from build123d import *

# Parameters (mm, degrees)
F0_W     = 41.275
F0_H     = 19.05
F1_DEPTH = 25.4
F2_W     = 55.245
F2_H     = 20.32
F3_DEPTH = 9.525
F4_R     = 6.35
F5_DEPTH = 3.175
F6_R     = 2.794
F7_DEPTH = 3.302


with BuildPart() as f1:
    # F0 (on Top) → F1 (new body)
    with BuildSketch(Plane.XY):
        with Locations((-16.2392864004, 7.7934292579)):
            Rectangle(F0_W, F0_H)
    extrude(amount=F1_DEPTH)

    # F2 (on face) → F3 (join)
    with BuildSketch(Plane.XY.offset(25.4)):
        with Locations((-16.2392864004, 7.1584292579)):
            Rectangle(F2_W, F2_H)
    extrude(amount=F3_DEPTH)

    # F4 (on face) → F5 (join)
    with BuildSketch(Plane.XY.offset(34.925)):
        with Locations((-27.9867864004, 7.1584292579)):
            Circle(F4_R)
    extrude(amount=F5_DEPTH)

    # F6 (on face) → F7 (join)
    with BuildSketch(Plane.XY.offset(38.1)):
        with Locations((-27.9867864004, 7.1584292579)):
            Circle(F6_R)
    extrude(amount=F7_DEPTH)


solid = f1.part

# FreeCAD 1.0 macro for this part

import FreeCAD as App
import Part
import Sketcher
Q = App.Units.Quantity

doc = App.newDocument("Part")
body = doc.addObject("PartDesign::Body", "Body")

# Sketch on XY plane
sketch1 = body.newObject("Sketcher::SketchObject", "Sketch")
sketch1.AttachmentSupport = (doc.getObject("XY_Plane"), [""])
sketch1.MapMode = "FlatFace"
sketch1.addGeometry(Part.LineSegment(App.Vector(-36.876786, 17.318429, 0), App.Vector(-36.876786, -1.731571, 0)), False)
sketch1.addGeometry(Part.LineSegment(App.Vector(-36.876786, -1.731571, 0), App.Vector(4.398214, -1.731571, 0)), False)
sketch1.addGeometry(Part.LineSegment(App.Vector(4.398214, -1.731571, 0), App.Vector(4.398214, 17.318429, 0)), False)
sketch1.addGeometry(Part.LineSegment(App.Vector(4.398214, 17.318429, 0), App.Vector(-36.876786, 17.318429, 0)), False)
sketch1.addConstraint(Sketcher.Constraint("Coincident", 0, 2, 1, 1))
sketch1.addConstraint(Sketcher.Constraint("Coincident", 1, 2, 2, 1))
sketch1.addConstraint(Sketcher.Constraint("Coincident", 2, 2, 3, 1))
sketch1.addConstraint(Sketcher.Constraint("Coincident", 3, 2, 0, 1))
sketch1.addConstraint(Sketcher.Constraint("Vertical", 0))
sketch1.addConstraint(Sketcher.Constraint("Horizontal", 1))
sketch1.addConstraint(Sketcher.Constraint("Vertical", 2))
sketch1.addConstraint(Sketcher.Constraint("Horizontal", 3))
sketch1.addConstraint(Sketcher.Constraint("DistanceY", 0, 2, 0, 1, Q("0.75 in")))
sketch1.addConstraint(Sketcher.Constraint("DistanceX", 1, 1, 1, 2, Q("1.625 in")))
sketch1.addConstraint(Sketcher.Constraint("DistanceY", 0, 2, -1, 1, 1.731571))
sketch1.addConstraint(Sketcher.Constraint("DistanceX", 0, 2, -1, 1, 36.876786))
pad1 = body.newObject("PartDesign::Pad", "Pad")
pad1.Profile = sketch1
pad1.Length = Q("1 in")

# Sketch on XY plane
sketch2 = body.newObject("Sketcher::SketchObject", "Sketch001")
sketch2.AttachmentSupport = (doc.getObject("XY_Plane"), [""])
sketch2.MapMode = "FlatFace"
sketch2.AttachmentOffset = App.Placement(App.Vector(0, 0, 1 * 25.4), App.Rotation())
sketch2.addGeometry(Part.LineSegment(App.Vector(-43.861786, 17.318429, 0), App.Vector(-43.861786, -3.001571, 0)), False)
sketch2.addGeometry(Part.LineSegment(App.Vector(-43.861786, -3.001571, 0), App.Vector(11.383214, -3.001571, 0)), False)
sketch2.addGeometry(Part.LineSegment(App.Vector(11.383214, -3.001571, 0), App.Vector(11.383214, 17.318429, 0)), False)
sketch2.addGeometry(Part.LineSegment(App.Vector(11.383214, 17.318429, 0), App.Vector(-43.861786, 17.318429, 0)), False)
sketch2.addConstraint(Sketcher.Constraint("Coincident", 0, 2, 1, 1))
sketch2.addConstraint(Sketcher.Constraint("Coincident", 1, 2, 2, 1))
sketch2.addConstraint(Sketcher.Constraint("Coincident", 2, 2, 3, 1))
sketch2.addConstraint(Sketcher.Constraint("Coincident", 3, 2, 0, 1))
sketch2.addConstraint(Sketcher.Constraint("Vertical", 0))
sketch2.addConstraint(Sketcher.Constraint("Horizontal", 1))
sketch2.addConstraint(Sketcher.Constraint("Vertical", 2))
sketch2.addConstraint(Sketcher.Constraint("Horizontal", 3))
sketch2.addConstraint(Sketcher.Constraint("DistanceY", 0, 2, 0, 1, Q("0.8 in")))
sketch2.addConstraint(Sketcher.Constraint("DistanceX", 1, 1, 1, 2, Q("2.175 in")))
sketch2.addConstraint(Sketcher.Constraint("DistanceY", 0, 2, -1, 1, 3.001571))
sketch2.addConstraint(Sketcher.Constraint("DistanceX", 0, 2, -1, 1, 43.861786))
pad2 = body.newObject("PartDesign::Pad", "Pad001")
pad2.Profile = sketch2
pad2.Length = Q("0.375 in")

# Sketch on XY plane
sketch3 = body.newObject("Sketcher::SketchObject", "Sketch002")
sketch3.AttachmentSupport = (doc.getObject("XY_Plane"), [""])
sketch3.MapMode = "FlatFace"
sketch3.AttachmentOffset = App.Placement(App.Vector(0, 0, 1.375 * 25.4), App.Rotation())
sketch3.addGeometry(Part.Circle(App.Vector(-27.986786, 7.158429, 0), App.Vector(0, 0, 1), 6.35), False)
sketch3.addConstraint(Sketcher.Constraint("Diameter", 0, Q("0.5 in")))
sketch3.addConstraint(Sketcher.Constraint("DistanceY", -1, 1, 0, 3, 7.158429))
sketch3.addConstraint(Sketcher.Constraint("DistanceX", 0, 3, -1, 1, 27.986786))
pad3 = body.newObject("PartDesign::Pad", "Pad002")
pad3.Profile = sketch3
pad3.Length = Q("0.125 in")

# Sketch on XY plane
sketch4 = body.newObject("Sketcher::SketchObject", "Sketch003")
sketch4.AttachmentSupport = (doc.getObject("XY_Plane"), [""])
sketch4.MapMode = "FlatFace"
sketch4.AttachmentOffset = App.Placement(App.Vector(0, 0, 1.5 * 25.4), App.Rotation())
sketch4.addGeometry(Part.Circle(App.Vector(-27.986786, 7.158429, 0), App.Vector(0, 0, 1), 2.794), False)
sketch4.addConstraint(Sketcher.Constraint("Diameter", 0, Q("0.22 in")))
sketch4.addConstraint(Sketcher.Constraint("DistanceY", -1, 1, 0, 3, 7.158429))
sketch4.addConstraint(Sketcher.Constraint("DistanceX", 0, 3, -1, 1, 27.986786))
pad4 = body.newObject("PartDesign::Pad", "Pad003")
pad4.Profile = sketch4
pad4.Length = Q("0.13 in")

doc.recompute()
